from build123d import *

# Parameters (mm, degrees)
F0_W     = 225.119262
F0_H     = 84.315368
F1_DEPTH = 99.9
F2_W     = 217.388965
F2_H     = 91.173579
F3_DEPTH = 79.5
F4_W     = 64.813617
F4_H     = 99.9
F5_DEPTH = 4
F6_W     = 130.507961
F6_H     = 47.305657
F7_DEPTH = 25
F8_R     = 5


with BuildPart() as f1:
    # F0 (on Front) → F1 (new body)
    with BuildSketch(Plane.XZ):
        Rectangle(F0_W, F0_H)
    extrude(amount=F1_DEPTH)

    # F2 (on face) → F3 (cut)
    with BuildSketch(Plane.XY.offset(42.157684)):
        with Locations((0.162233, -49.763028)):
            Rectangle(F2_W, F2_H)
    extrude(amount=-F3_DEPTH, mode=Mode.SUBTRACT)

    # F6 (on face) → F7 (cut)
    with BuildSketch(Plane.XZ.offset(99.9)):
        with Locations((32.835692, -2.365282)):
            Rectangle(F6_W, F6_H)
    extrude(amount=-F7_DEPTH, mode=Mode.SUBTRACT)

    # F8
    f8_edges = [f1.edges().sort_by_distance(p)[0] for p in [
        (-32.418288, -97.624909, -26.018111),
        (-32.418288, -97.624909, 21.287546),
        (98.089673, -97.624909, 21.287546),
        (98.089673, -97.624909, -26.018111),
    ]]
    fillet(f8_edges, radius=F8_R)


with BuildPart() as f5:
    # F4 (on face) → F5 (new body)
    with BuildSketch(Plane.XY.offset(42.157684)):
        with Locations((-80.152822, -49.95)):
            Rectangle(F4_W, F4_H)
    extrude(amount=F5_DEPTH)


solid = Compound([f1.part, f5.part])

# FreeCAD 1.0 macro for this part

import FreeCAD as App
import Part
import Sketcher
Q = App.Units.Quantity


def edges_at(feature, points):
    """Names of the edges that pass closest to the given points."""
    edges = feature.Shape.Edges
    near = lambda p: min(range(len(edges)), key=lambda i: edges[i].distToShape(Part.Vertex(*p))[0])
    return sorted({f"Edge{near(p) + 1}" for p in points})


def add_polygon(sketch, points):
    """Adds a closed chain of lines whose ends are joined by coincident constraints."""
    first, n = sketch.GeometryCount, len(points)
    for a, b in zip(points, points[1:] + points[:1]):
        sketch.addGeometry(Part.LineSegment(App.Vector(*a, 0), App.Vector(*b, 0)), False)
    for i in range(n):
        sketch.addConstraint(Sketcher.Constraint("Coincident", first + i, 2, first + (i + 1) % n, 1))

doc = App.newDocument("Part")
body = doc.addObject("PartDesign::Body", "Body")

# Sketch on XZ plane
sketch1 = body.newObject("Sketcher::SketchObject", "Sketch")
sketch1.AttachmentSupport = (doc.getObject("XZ_Plane"), [""])
sketch1.MapMode = "FlatFace"
add_polygon(sketch1, [(-112.559631, 42.157684), (-112.559631, -42.157684), (112.559631, -42.157684), (112.559631, 42.157684)])  # lines 0-3
sketch1.addConstraint(Sketcher.Constraint("Vertical", 0))
sketch1.addConstraint(Sketcher.Constraint("Horizontal", 1))
sketch1.addConstraint(Sketcher.Constraint("Vertical", 2))
sketch1.addConstraint(Sketcher.Constraint("Horizontal", 3))
sketch1.addConstraint(Sketcher.Constraint("Symmetric", 0, 2, 2, 2, -1, 1))
sketch1.addConstraint(Sketcher.Constraint("DistanceX", 1, 1, 1, 2, Q("225.119262 mm")))
sketch1.addConstraint(Sketcher.Constraint("DistanceY", 0, 2, 0, 1, Q("84.315368 mm")))
pad1 = body.newObject("PartDesign::Pad", "Pad")
pad1.Profile = sketch1
pad1.Length = 99.9

# Sketch on XY plane
sketch2 = body.newObject("Sketcher::SketchObject", "Sketch001")
sketch2.AttachmentSupport = (doc.getObject("XY_Plane"), [""])
sketch2.MapMode = "FlatFace"
sketch2.AttachmentOffset = App.Placement(App.Vector(0, 0, 42.157684), App.Rotation())
add_polygon(sketch2, [(-108.53225, -4.176239), (-108.53225, -95.349818), (108.856716, -95.349818), (108.856716, -4.176239)])  # lines 0-3
sketch2.addConstraint(Sketcher.Constraint("Vertical", 0))
sketch2.addConstraint(Sketcher.Constraint("Horizontal", 1))
sketch2.addConstraint(Sketcher.Constraint("Vertical", 2))
sketch2.addConstraint(Sketcher.Constraint("Horizontal", 3))
sketch2.addConstraint(Sketcher.Constraint("DistanceY", 0, 2, 0, 1, Q("91.173579 mm")))
sketch2.addConstraint(Sketcher.Constraint("DistanceX", 1, 1, 1, 2, Q("217.388965 mm")))
sketch2.addConstraint(Sketcher.Constraint("DistanceX", 0, 2, -1, 1, Q("108.53225 mm")))
sketch2.addConstraint(Sketcher.Constraint("DistanceY", 2, 2, -1, 1, Q("4.176239 mm")))
pocket1 = body.newObject("PartDesign::Pocket", "Pocket")
pocket1.Profile = sketch2
pocket1.Length = 79.5

# Sketch on XZ plane
sketch3 = body.newObject("Sketcher::SketchObject", "Sketch002")
sketch3.AttachmentSupport = (doc.getObject("XZ_Plane"), [""])
sketch3.MapMode = "FlatFace"
sketch3.AttachmentOffset = App.Placement(App.Vector(0, 0, 99.9), App.Rotation())
add_polygon(sketch3, [(-32.418289, 21.287547), (-32.418289, -26.01811), (98.089673, -26.01811), (98.089673, 21.287547)])  # lines 0-3
sketch3.addConstraint(Sketcher.Constraint("Vertical", 0))
sketch3.addConstraint(Sketcher.Constraint("Horizontal", 1))
sketch3.addConstraint(Sketcher.Constraint("Vertical", 2))
sketch3.addConstraint(Sketcher.Constraint("Horizontal", 3))
sketch3.addConstraint(Sketcher.Constraint("DistanceX", 1, 1, 1, 2, Q("130.507961 mm")))
sketch3.addConstraint(Sketcher.Constraint("DistanceY", 0, 2, 0, 1, Q("47.305657 mm")))
sketch3.addConstraint(Sketcher.Constraint("DistanceX", 0, 2, -1, 1, Q("32.418289 mm")))
sketch3.addConstraint(Sketcher.Constraint("DistanceY", 0, 2, -1, 1, Q("26.01811 mm")))
pocket2 = body.newObject("PartDesign::Pocket", "Pocket001")
pocket2.Profile = sketch3
pocket2.Length = 25
doc.recompute()

fillet = body.newObject("PartDesign::Fillet", "Fillet")
fillet.Base = (pocket2, edges_at(pocket2, [
    (-32.418, -97.625, -26.018),
    (-32.418, -97.625, 21.288),
    (98.09, -97.625, 21.288),
    (98.09, -97.625, -26.018),
]))
fillet.Radius = 5
body2 = doc.addObject("PartDesign::Body", "Body001")

# Sketch on XY plane
sketch4 = body2.newObject("Sketcher::SketchObject", "Sketch003")
sketch4.AttachmentSupport = (doc.getObject("XY_Plane001"), [""])
sketch4.MapMode = "FlatFace"
sketch4.AttachmentOffset = App.Placement(App.Vector(0, 0, 42.157684), App.Rotation())
add_polygon(sketch4, [(-112.55963, 0), (-112.55963, -99.9), (-47.746013, -99.9), (-47.746013, 0)])  # lines 0-3
sketch4.addConstraint(Sketcher.Constraint("Vertical", 0))
sketch4.addConstraint(Sketcher.Constraint("Horizontal", 1))
sketch4.addConstraint(Sketcher.Constraint("Vertical", 2))
sketch4.addConstraint(Sketcher.Constraint("Horizontal", 3))
sketch4.addConstraint(Sketcher.Constraint("PointOnObject", 2, 2, -1))
sketch4.addConstraint(Sketcher.Constraint("DistanceY", 0, 2, 0, 1, Q("99.9 mm")))
sketch4.addConstraint(Sketcher.Constraint("DistanceX", 1, 1, 1, 2, Q("64.813617 mm")))
sketch4.addConstraint(Sketcher.Constraint("DistanceX", 0, 2, -1, 1, Q("112.55963 mm")))
pad2 = body2.newObject("PartDesign::Pad", "Pad001")
pad2.Profile = sketch4
pad2.Length = 4

doc.recompute()
